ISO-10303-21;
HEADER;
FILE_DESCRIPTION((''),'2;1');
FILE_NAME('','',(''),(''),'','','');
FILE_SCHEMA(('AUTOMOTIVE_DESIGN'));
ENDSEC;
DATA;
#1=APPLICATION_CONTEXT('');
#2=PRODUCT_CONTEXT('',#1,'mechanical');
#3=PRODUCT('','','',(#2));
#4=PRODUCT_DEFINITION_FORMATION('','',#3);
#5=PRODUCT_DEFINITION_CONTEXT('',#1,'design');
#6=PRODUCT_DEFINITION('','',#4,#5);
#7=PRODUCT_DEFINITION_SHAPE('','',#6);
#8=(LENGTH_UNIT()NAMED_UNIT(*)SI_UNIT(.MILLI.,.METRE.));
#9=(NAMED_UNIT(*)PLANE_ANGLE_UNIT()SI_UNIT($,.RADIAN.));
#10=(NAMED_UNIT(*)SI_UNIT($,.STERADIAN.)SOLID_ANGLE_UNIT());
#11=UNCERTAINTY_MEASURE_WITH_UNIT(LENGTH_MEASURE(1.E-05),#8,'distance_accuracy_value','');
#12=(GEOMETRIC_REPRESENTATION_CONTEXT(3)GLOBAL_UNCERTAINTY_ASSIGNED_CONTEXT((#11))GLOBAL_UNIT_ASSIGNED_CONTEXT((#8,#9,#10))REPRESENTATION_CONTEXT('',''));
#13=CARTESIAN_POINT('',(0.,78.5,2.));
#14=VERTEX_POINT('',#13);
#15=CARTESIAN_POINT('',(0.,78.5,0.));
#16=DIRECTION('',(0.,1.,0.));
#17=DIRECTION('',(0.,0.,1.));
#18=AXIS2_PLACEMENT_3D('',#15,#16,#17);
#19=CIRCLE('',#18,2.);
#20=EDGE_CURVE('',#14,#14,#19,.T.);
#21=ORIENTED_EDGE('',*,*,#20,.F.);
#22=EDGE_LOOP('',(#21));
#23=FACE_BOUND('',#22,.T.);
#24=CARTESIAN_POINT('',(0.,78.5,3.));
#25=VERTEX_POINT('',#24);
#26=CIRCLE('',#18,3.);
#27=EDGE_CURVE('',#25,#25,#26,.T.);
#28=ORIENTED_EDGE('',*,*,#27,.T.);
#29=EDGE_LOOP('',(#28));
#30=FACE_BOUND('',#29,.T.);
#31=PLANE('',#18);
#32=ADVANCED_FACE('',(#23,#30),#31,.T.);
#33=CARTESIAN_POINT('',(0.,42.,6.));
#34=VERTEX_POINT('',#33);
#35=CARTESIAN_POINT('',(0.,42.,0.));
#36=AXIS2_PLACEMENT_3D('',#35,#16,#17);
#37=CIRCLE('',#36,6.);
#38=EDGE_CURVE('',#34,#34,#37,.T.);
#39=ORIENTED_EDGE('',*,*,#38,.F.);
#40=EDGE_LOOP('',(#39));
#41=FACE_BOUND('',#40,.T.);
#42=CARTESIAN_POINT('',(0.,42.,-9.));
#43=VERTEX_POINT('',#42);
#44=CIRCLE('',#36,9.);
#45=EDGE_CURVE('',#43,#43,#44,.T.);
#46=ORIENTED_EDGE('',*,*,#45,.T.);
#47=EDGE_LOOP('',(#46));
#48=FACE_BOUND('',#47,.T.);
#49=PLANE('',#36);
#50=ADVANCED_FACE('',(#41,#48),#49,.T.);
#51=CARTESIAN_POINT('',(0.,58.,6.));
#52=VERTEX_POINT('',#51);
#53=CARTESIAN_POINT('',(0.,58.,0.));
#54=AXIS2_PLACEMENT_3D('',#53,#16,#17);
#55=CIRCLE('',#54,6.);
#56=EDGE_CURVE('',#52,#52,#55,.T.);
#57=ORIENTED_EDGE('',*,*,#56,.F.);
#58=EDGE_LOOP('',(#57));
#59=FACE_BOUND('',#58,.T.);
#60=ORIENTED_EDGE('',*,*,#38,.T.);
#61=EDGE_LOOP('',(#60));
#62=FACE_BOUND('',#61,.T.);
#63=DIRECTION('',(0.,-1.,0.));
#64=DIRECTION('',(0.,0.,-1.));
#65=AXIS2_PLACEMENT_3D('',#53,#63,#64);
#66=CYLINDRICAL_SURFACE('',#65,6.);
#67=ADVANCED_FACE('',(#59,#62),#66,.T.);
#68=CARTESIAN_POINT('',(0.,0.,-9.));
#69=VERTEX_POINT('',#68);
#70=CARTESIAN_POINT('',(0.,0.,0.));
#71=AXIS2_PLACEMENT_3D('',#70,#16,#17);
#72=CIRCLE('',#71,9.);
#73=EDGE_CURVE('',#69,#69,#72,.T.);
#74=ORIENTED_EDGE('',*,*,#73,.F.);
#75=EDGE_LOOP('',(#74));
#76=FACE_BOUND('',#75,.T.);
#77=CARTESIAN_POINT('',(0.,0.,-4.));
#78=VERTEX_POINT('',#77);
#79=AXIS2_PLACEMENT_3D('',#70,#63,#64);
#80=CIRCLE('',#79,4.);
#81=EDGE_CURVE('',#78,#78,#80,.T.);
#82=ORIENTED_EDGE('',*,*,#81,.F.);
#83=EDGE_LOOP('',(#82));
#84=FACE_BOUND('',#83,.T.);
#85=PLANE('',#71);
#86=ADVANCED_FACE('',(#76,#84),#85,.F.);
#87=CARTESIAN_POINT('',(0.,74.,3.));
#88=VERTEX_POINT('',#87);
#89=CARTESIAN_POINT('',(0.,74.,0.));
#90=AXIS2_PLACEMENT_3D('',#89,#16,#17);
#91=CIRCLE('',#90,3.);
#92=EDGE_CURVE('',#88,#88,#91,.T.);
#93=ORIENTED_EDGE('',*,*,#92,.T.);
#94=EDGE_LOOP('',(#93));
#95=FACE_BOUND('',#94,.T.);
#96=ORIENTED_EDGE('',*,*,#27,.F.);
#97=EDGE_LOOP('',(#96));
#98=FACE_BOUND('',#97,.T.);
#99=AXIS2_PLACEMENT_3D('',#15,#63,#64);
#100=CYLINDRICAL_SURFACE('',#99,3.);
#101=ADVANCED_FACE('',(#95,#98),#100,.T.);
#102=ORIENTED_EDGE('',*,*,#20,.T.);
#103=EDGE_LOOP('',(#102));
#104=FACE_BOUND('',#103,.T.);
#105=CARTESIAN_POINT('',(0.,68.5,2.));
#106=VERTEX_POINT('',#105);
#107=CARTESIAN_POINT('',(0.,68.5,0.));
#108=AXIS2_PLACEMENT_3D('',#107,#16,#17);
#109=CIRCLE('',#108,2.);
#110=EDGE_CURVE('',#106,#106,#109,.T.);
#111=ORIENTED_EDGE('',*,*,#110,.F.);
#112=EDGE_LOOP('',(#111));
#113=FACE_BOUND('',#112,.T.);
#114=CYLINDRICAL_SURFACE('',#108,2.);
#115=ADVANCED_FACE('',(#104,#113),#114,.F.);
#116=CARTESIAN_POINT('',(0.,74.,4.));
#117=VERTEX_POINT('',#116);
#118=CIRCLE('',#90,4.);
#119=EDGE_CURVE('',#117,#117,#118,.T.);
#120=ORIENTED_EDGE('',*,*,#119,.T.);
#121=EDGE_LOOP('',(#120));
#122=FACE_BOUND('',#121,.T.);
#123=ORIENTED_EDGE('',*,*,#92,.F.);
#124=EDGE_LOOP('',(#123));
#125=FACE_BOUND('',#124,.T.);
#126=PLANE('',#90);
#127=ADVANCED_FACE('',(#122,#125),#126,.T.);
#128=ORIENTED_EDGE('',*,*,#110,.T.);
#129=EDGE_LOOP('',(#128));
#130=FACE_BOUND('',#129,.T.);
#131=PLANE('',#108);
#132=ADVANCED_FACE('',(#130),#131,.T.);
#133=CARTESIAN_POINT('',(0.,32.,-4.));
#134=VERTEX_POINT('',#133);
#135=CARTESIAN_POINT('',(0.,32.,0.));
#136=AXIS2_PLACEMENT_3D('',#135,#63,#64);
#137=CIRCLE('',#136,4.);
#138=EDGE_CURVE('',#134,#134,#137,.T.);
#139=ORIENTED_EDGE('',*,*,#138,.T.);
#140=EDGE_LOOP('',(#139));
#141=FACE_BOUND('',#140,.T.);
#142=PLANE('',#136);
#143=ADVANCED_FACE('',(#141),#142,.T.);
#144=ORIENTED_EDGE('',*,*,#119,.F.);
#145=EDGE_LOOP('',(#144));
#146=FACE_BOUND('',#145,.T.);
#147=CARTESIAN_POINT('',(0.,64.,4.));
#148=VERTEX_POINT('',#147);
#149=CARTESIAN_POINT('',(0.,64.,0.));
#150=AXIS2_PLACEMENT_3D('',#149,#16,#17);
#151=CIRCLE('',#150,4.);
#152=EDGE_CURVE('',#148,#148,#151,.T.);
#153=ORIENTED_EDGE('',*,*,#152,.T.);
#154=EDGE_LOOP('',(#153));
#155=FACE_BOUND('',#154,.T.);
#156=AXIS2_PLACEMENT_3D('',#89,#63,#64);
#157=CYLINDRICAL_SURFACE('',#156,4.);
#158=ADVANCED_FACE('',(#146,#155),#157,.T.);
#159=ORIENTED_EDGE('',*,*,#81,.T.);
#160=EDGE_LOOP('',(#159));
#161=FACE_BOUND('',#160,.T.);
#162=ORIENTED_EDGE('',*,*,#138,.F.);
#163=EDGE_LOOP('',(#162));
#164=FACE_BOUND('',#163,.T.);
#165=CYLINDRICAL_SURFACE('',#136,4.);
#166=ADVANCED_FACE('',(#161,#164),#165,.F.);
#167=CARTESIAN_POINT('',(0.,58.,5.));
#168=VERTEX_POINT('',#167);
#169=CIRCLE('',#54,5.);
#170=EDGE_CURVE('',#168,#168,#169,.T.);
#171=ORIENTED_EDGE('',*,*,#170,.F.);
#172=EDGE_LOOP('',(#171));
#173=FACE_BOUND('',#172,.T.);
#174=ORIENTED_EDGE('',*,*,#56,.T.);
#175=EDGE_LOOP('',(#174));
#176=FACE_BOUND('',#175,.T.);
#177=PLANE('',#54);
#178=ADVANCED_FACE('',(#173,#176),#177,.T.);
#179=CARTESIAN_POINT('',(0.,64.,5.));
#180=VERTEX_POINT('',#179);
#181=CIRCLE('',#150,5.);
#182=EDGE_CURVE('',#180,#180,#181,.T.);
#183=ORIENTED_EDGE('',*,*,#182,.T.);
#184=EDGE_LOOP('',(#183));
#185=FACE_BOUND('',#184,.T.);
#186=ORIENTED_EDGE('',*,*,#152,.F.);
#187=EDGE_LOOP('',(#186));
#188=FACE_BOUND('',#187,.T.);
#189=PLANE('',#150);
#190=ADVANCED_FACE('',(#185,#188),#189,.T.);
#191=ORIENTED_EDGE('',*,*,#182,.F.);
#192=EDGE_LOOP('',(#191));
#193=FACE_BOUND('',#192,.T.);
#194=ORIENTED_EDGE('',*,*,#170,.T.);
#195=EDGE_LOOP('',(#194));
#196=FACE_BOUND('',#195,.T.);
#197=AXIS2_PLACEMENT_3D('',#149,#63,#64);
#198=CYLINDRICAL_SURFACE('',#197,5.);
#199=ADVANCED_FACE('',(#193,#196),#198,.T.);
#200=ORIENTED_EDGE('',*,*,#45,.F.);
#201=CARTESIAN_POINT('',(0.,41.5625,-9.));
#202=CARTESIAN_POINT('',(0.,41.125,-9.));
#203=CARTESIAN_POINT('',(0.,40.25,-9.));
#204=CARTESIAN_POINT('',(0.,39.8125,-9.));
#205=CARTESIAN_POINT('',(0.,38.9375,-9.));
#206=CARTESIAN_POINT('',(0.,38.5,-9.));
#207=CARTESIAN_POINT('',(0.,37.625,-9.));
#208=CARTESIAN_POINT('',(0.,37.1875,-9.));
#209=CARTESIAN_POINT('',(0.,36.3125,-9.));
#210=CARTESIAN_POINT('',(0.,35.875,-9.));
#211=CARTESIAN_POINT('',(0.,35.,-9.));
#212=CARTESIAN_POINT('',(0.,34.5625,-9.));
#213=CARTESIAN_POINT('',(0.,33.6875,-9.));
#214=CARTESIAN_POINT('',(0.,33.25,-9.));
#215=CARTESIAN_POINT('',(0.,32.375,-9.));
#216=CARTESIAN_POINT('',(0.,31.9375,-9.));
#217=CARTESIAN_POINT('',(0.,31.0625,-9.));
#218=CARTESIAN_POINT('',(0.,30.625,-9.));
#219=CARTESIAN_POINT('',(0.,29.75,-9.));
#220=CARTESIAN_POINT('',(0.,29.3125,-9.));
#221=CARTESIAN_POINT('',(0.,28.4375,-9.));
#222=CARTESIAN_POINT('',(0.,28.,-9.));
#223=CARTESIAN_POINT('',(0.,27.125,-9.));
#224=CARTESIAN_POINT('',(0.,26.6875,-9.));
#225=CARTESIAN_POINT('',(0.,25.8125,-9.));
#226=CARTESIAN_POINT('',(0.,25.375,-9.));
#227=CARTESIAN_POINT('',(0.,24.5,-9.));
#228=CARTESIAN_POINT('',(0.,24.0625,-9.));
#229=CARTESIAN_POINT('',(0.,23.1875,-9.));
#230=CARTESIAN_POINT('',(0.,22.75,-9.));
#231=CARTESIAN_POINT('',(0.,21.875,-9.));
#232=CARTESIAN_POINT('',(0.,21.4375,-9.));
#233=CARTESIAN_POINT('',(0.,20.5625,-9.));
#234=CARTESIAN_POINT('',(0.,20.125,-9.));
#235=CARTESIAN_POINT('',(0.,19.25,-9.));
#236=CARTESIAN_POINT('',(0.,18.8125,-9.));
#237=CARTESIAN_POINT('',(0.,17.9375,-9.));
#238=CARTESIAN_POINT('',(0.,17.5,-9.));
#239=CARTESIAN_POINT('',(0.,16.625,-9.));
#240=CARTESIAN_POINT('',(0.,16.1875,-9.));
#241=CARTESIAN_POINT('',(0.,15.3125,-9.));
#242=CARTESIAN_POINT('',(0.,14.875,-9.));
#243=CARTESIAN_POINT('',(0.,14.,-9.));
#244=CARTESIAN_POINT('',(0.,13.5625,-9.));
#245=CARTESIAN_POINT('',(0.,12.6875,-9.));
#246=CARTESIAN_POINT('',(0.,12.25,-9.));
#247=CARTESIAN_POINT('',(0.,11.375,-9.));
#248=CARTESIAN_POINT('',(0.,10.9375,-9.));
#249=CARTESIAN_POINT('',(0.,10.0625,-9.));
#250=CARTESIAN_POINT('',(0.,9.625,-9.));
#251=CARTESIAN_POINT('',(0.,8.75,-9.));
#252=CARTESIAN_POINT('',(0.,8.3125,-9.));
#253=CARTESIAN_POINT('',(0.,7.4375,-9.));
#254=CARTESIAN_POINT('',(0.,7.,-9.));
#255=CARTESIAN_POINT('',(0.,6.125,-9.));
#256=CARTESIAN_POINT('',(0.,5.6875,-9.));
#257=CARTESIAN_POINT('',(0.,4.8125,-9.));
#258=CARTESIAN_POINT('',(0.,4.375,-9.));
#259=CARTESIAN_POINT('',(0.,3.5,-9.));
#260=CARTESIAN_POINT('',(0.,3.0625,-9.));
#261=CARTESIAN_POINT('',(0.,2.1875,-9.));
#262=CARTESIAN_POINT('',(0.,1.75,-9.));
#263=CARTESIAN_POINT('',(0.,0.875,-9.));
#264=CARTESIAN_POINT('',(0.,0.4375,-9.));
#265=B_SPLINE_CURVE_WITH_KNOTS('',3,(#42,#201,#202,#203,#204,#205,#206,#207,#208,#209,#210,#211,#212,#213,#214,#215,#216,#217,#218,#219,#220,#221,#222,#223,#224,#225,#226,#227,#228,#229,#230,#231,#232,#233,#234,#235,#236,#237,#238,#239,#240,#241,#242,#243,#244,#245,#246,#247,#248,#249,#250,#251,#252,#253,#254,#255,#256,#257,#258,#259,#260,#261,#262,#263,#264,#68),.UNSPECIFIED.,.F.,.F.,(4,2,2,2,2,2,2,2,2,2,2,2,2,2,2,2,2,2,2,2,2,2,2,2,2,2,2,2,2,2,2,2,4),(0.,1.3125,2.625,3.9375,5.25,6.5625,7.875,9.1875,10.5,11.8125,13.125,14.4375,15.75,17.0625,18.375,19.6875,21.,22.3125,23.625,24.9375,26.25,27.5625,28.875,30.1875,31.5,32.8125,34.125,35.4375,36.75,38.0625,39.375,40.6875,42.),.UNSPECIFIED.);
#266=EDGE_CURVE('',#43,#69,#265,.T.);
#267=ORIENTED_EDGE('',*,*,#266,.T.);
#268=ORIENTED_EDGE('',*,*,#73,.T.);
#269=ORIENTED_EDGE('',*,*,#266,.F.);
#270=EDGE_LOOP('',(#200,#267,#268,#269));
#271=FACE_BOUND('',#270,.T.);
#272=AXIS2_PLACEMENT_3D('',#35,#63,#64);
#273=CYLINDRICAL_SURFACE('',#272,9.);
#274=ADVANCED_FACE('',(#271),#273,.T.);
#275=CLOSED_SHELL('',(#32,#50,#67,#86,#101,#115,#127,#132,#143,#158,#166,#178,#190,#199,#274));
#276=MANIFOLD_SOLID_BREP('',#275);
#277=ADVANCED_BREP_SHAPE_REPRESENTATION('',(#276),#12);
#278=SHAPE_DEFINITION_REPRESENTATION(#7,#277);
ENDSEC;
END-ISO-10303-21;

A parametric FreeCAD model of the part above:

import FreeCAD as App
import Part
import Sketcher

V = App.Vector
Q = App.Units.Quantity

doc = App.newDocument("Part")
params = doc.addObject("Spreadsheet::Sheet", "Params")
for row, (alias, value) in enumerate([
    ("sketch1_diameter", "18 mm"),
    ("pad1_length", "42 mm"),
    ("sketch2_diameter", "12 mm"),
    ("pad2_length", "16 mm"),
    ("sketch3_diameter", "10 mm"),
    ("pad3_length", "6 mm"),
    ("sketch4_diameter", "8 mm"),
    ("pad4_length", "10 mm"),
    ("sketch5_diameter", "6 mm"),
    ("pad5_length", "4.5 mm"),
    ("sketch6_diameter", "4 mm"),
    ("pocket1_length", "10 mm"),
    ("sketch7_diameter", "8 mm"),
    ("pocket2_length", "32 mm"),
], start=1):
    params.set(f"A{row}", alias)
    params.set(f"B{row}", "=" + value)
    params.setAlias(f"B{row}", alias)

body = doc.addObject("PartDesign::Body", "Body")

sketch1 = doc.addObject("Sketcher::SketchObject", "Sketch")
body.addObject(sketch1)
sketch1.AttachmentSupport = (doc.XZ_Plane, [""])
sketch1.MapMode = "FlatFace"
sketch1.addGeometry(Part.Circle(V(0, 0, 0), V(0, 0, 1), 9), False)
sketch1.addConstraint(Sketcher.Constraint("Coincident", 0, 3, -1, 1))
sketch1.addConstraint(Sketcher.Constraint("Diameter", 0, Q("18 mm")))
sketch1.setExpression("Constraints[1]", "Params.sketch1_diameter")
pad1 = doc.addObject("PartDesign::Pad", "Pad")
body.addObject(pad1)
pad1.Profile = sketch1
pad1.setExpression("Length", "Params.pad1_length")
pad1.Reversed = True

sketch2 = doc.addObject("Sketcher::SketchObject", "Sketch001")
body.addObject(sketch2)
sketch2.AttachmentSupport = (doc.XZ_Plane, [""])
sketch2.MapMode = "FlatFace"
sketch2.AttachmentOffset = App.Placement(V(0, 0, -42), App.Rotation())
sketch2.addGeometry(Part.Circle(V(0, 0, 0), V(0, 0, 1), 6), False)
sketch2.addConstraint(Sketcher.Constraint("Coincident", 0, 3, -1, 1))
sketch2.addConstraint(Sketcher.Constraint("Diameter", 0, Q("12 mm")))
sketch2.setExpression("Constraints[1]", "Params.sketch2_diameter")
pad2 = doc.addObject("PartDesign::Pad", "Pad001")
body.addObject(pad2)
pad2.Profile = sketch2
pad2.setExpression("Length", "Params.pad2_length")
pad2.Reversed = True

sketch3 = doc.addObject("Sketcher::SketchObject", "Sketch002")
body.addObject(sketch3)
sketch3.AttachmentSupport = (doc.XZ_Plane, [""])
sketch3.MapMode = "FlatFace"
sketch3.AttachmentOffset = App.Placement(V(0, 0, -58), App.Rotation())
sketch3.addGeometry(Part.Circle(V(0, 0, 0), V(0, 0, 1), 5), False)
sketch3.addConstraint(Sketcher.Constraint("Coincident", 0, 3, -1, 1))
sketch3.addConstraint(Sketcher.Constraint("Diameter", 0, Q("10 mm")))
sketch3.setExpression("Constraints[1]", "Params.sketch3_diameter")
pad3 = doc.addObject("PartDesign::Pad", "Pad002")
body.addObject(pad3)
pad3.Profile = sketch3
pad3.setExpression("Length", "Params.pad3_length")
pad3.Reversed = True

sketch4 = doc.addObject("Sketcher::SketchObject", "Sketch003")
body.addObject(sketch4)
sketch4.AttachmentSupport = (doc.XZ_Plane, [""])
sketch4.MapMode = "FlatFace"
sketch4.AttachmentOffset = App.Placement(V(0, 0, -64), App.Rotation())
sketch4.addGeometry(Part.Circle(V(0, 0, 0), V(0, 0, 1), 4), False)
sketch4.addConstraint(Sketcher.Constraint("Coincident", 0, 3, -1, 1))
sketch4.addConstraint(Sketcher.Constraint("Diameter", 0, Q("8 mm")))
sketch4.setExpression("Constraints[1]", "Params.sketch4_diameter")
pad4 = doc.addObject("PartDesign::Pad", "Pad003")
body.addObject(pad4)
pad4.Profile = sketch4
pad4.setExpression("Length", "Params.pad4_length")
pad4.Reversed = True

sketch5 = doc.addObject("Sketcher::SketchObject", "Sketch004")
body.addObject(sketch5)
sketch5.AttachmentSupport = (doc.XZ_Plane, [""])
sketch5.MapMode = "FlatFace"
sketch5.AttachmentOffset = App.Placement(V(0, 0, -74), App.Rotation())
sketch5.addGeometry(Part.Circle(V(0, 0, 0), V(0, 0, 1), 3), False)
sketch5.addConstraint(Sketcher.Constraint("Coincident", 0, 3, -1, 1))
sketch5.addConstraint(Sketcher.Constraint("Diameter", 0, Q("6 mm")))
sketch5.setExpression("Constraints[1]", "Params.sketch5_diameter")
pad5 = doc.addObject("PartDesign::Pad", "Pad004")
body.addObject(pad5)
pad5.Profile = sketch5
pad5.setExpression("Length", "Params.pad5_length")
pad5.Reversed = True

sketch6 = doc.addObject("Sketcher::SketchObject", "Sketch005")
body.addObject(sketch6)
sketch6.AttachmentSupport = (doc.XZ_Plane, [""])
sketch6.MapMode = "FlatFace"
sketch6.AttachmentOffset = App.Placement(V(0, 0, -78.5), App.Rotation())
sketch6.addGeometry(Part.Circle(V(0, 0, 0), V(0, 0, 1), 2), False)
sketch6.addConstraint(Sketcher.Constraint("Coincident", 0, 3, -1, 1))
sketch6.addConstraint(Sketcher.Constraint("Diameter", 0, Q("4 mm")))
sketch6.setExpression("Constraints[1]", "Params.sketch6_diameter")
pocket1 = doc.addObject("PartDesign::Pocket", "Pocket")
body.addObject(pocket1)
pocket1.Profile = sketch6
pocket1.setExpression("Length", "Params.pocket1_length")
pocket1.Reversed = True

sketch7 = doc.addObject("Sketcher::SketchObject", "Sketch006")
body.addObject(sketch7)
sketch7.AttachmentSupport = (doc.XZ_Plane, [""])
sketch7.MapMode = "FlatFace"
sketch7.addGeometry(Part.Circle(V(0, 0, 0), V(0, 0, 1), 4), False)
sketch7.addConstraint(Sketcher.Constraint("Coincident", 0, 3, -1, 1))
sketch7.addConstraint(Sketcher.Constraint("Diameter", 0, Q("8 mm")))
sketch7.setExpression("Constraints[1]", "Params.sketch7_diameter")
pocket2 = doc.addObject("PartDesign::Pocket", "Pocket001")
body.addObject(pocket2)
pocket2.Profile = sketch7
pocket2.setExpression("Length", "Params.pocket2_length")

doc.recompute()
